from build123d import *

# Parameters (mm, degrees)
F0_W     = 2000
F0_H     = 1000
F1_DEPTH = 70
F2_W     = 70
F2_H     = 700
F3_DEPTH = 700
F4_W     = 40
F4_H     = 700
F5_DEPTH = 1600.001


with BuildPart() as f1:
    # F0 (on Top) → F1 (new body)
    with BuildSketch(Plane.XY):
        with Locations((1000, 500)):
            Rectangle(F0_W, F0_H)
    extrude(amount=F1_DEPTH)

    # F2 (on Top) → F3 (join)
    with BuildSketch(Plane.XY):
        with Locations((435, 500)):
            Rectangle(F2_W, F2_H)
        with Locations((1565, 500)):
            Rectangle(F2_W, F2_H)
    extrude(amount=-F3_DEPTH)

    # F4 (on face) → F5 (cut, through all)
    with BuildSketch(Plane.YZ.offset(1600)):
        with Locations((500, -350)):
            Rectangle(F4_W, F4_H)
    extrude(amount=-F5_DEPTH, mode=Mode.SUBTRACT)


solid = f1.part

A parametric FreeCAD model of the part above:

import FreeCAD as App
import Part
import Sketcher
Q = App.Units.Quantity


def add_polygon(sketch, points):
    """Adds a closed chain of lines whose ends are joined by coincident constraints."""
    first, n = sketch.GeometryCount, len(points)
    for a, b in zip(points, points[1:] + points[:1]):
        sketch.addGeometry(Part.LineSegment(App.Vector(*a, 0), App.Vector(*b, 0)), False)
    for i in range(n):
        sketch.addConstraint(Sketcher.Constraint("Coincident", first + i, 2, first + (i + 1) % n, 1))

doc = App.newDocument("Part")
body = doc.addObject("PartDesign::Body", "Body")

sketch1 = body.newObject("Sketcher::SketchObject", "Sketch")
sketch1.AttachmentSupport = (doc.getObject("XY_Plane"), [""])
sketch1.MapMode = "FlatFace"
add_polygon(sketch1, [(0, 1000), (0, 0), (2000, 0), (2000, 1000)])
sketch1.addConstraint([
    Sketcher.Constraint("Vertical", 0),
    Sketcher.Constraint("Horizontal", 1),
    Sketcher.Constraint("Vertical", 2),
    Sketcher.Constraint("Horizontal", 3),
    Sketcher.Constraint("Coincident", 0, 2, -1, 1),
    Sketcher.Constraint("DistanceX", 1, 1, 1, 2, Q("2000 mm")),
    Sketcher.Constraint("DistanceY", 0, 2, 0, 1, Q("1000 mm")),
])
pad1 = body.newObject("PartDesign::Pad", "Pad")
pad1.Profile = sketch1
pad1.Length = 70

sketch2 = body.newObject("Sketcher::SketchObject", "Sketch001")
sketch2.AttachmentSupport = (doc.getObject("XY_Plane"), [""])
sketch2.MapMode = "FlatFace"
add_polygon(sketch2, [(400, 850), (400, 150), (470, 150), (470, 850)])
add_polygon(sketch2, [(1530, 850), (1530, 150), (1600, 150), (1600, 850)])
sketch2.addConstraint([
    Sketcher.Constraint("Vertical", 0),
    Sketcher.Constraint("Horizontal", 1),
    Sketcher.Constraint("Vertical", 2),
    Sketcher.Constraint("Horizontal", 3),
    Sketcher.Constraint("Vertical", 4),
    Sketcher.Constraint("Horizontal", 5),
    Sketcher.Constraint("Vertical", 6),
    Sketcher.Constraint("Horizontal", 7),
    Sketcher.Constraint("Horizontal", 1, 2, 4, 2),
    Sketcher.Constraint("Horizontal", 3, 2, 6, 2),
    Sketcher.Constraint("Equal", 3, 5),
    Sketcher.Constraint("DistanceX", 1, 1, 1, 2, Q("70 mm")),
    Sketcher.Constraint("DistanceY", 0, 2, 0, 1, Q("700 mm")),
    Sketcher.Constraint("DistanceX", -1, 1, 0, 2, Q("400 mm")),
    Sketcher.Constraint("DistanceY", -1, 1, 0, 2, Q("150 mm")),
    Sketcher.Constraint("DistanceX", -1, 1, 4, 2, Q("1530 mm")),
])
pad2 = body.newObject("PartDesign::Pad", "Pad001")
pad2.Profile = sketch2
pad2.Length = 700
pad2.Reversed = True

sketch3 = body.newObject("Sketcher::SketchObject", "Sketch002")
sketch3.AttachmentSupport = (doc.getObject("YZ_Plane"), [""])
sketch3.MapMode = "FlatFace"
sketch3.AttachmentOffset = App.Placement(App.Vector(0, 0, 1600), App.Rotation())
add_polygon(sketch3, [(480, 0), (480, -700), (520, -700), (520, 0)])
sketch3.addConstraint([
    Sketcher.Constraint("Vertical", 0),
    Sketcher.Constraint("Horizontal", 1),
    Sketcher.Constraint("Vertical", 2),
    Sketcher.Constraint("Horizontal", 3),
    Sketcher.Constraint("PointOnObject", 2, 2, -1),
    Sketcher.Constraint("DistanceX", 1, 1, 1, 2, Q("40 mm")),
    Sketcher.Constraint("DistanceY", 0, 2, 0, 1, Q("700 mm")),
    Sketcher.Constraint("DistanceX", -1, 1, 0, 2, Q("480 mm")),
])
pocket1 = body.newObject("PartDesign::Pocket", "Pocket")
pocket1.Profile = sketch3
pocket1.Type = "ThroughAll"

doc.recompute()
